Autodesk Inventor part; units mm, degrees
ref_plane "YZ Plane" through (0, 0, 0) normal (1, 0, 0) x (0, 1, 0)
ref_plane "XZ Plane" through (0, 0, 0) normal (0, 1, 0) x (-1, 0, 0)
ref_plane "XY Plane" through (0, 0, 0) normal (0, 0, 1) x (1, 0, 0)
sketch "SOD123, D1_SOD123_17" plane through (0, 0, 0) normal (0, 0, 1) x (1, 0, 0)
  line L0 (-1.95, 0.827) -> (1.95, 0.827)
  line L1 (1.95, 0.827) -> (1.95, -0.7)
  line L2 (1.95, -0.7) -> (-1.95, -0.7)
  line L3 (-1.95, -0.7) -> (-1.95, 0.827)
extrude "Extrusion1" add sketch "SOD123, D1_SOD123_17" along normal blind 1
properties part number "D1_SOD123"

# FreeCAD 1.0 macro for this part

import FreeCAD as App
import Part
import Sketcher
from FreeCAD import Vector
Q = App.Units.Quantity


def add_polygon(sketch, points):
    """Adds a closed chain of lines whose ends are joined by coincident constraints."""
    first, n = sketch.GeometryCount, len(points)
    for a, b in zip(points, points[1:] + points[:1]):
        sketch.addGeometry(Part.LineSegment(App.Vector(*a, 0), App.Vector(*b, 0)), False)
    for i in range(n):
        sketch.addConstraint(Sketcher.Constraint("Coincident", first + i, 2, first + (i + 1) % n, 1))

doc = App.newDocument("Part")
params = doc.addObject("Spreadsheet::Sheet", "Params")
for row, (alias, value) in enumerate([
    ("sketch1_width", "3.9 mm"),
    ("pad1_length", "1 mm"),
], start=1):
    params.set(f"A{row}", alias)
    params.set(f"B{row}", "=" + value)
    params.setAlias(f"B{row}", alias)

body = doc.addObject("PartDesign::Body", "Body")

sketch1 = body.newObject("Sketcher::SketchObject", "Sketch")
sketch1.AttachmentSupport = (doc.getObject("XY_Plane"), [""])
sketch1.MapMode = "FlatFace"
add_polygon(sketch1, [(1.95, 0.827), (-1.95, 0.827), (-1.95, -0.7), (1.95, -0.7)])
sketch1.addConstraint([
    Sketcher.Constraint("Horizontal", 0),
    Sketcher.Constraint("Vertical", 1),
    Sketcher.Constraint("Horizontal", 2),
    Sketcher.Constraint("Vertical", 3),
    Sketcher.Constraint("DistanceX", 0, 2, 0, 1, Q("3.9 mm")),
    Sketcher.Constraint("DistanceY", 1, 2, -1, 1, Q("0.7 mm")),
    Sketcher.Constraint("DistanceY", 1, 2, 1, 1, Q("1.527 mm")),
    Sketcher.Constraint("DistanceX", 0, 2, -1, 1, Q("1.95 mm")),
])
sketch1.setExpression("Constraints[8]", "Params.sketch1_width")
pad1 = body.newObject("PartDesign::Pad", "Pad")
pad1.Profile = sketch1
pad1.setExpression("Length", "Params.pad1_length")

doc.recompute()
